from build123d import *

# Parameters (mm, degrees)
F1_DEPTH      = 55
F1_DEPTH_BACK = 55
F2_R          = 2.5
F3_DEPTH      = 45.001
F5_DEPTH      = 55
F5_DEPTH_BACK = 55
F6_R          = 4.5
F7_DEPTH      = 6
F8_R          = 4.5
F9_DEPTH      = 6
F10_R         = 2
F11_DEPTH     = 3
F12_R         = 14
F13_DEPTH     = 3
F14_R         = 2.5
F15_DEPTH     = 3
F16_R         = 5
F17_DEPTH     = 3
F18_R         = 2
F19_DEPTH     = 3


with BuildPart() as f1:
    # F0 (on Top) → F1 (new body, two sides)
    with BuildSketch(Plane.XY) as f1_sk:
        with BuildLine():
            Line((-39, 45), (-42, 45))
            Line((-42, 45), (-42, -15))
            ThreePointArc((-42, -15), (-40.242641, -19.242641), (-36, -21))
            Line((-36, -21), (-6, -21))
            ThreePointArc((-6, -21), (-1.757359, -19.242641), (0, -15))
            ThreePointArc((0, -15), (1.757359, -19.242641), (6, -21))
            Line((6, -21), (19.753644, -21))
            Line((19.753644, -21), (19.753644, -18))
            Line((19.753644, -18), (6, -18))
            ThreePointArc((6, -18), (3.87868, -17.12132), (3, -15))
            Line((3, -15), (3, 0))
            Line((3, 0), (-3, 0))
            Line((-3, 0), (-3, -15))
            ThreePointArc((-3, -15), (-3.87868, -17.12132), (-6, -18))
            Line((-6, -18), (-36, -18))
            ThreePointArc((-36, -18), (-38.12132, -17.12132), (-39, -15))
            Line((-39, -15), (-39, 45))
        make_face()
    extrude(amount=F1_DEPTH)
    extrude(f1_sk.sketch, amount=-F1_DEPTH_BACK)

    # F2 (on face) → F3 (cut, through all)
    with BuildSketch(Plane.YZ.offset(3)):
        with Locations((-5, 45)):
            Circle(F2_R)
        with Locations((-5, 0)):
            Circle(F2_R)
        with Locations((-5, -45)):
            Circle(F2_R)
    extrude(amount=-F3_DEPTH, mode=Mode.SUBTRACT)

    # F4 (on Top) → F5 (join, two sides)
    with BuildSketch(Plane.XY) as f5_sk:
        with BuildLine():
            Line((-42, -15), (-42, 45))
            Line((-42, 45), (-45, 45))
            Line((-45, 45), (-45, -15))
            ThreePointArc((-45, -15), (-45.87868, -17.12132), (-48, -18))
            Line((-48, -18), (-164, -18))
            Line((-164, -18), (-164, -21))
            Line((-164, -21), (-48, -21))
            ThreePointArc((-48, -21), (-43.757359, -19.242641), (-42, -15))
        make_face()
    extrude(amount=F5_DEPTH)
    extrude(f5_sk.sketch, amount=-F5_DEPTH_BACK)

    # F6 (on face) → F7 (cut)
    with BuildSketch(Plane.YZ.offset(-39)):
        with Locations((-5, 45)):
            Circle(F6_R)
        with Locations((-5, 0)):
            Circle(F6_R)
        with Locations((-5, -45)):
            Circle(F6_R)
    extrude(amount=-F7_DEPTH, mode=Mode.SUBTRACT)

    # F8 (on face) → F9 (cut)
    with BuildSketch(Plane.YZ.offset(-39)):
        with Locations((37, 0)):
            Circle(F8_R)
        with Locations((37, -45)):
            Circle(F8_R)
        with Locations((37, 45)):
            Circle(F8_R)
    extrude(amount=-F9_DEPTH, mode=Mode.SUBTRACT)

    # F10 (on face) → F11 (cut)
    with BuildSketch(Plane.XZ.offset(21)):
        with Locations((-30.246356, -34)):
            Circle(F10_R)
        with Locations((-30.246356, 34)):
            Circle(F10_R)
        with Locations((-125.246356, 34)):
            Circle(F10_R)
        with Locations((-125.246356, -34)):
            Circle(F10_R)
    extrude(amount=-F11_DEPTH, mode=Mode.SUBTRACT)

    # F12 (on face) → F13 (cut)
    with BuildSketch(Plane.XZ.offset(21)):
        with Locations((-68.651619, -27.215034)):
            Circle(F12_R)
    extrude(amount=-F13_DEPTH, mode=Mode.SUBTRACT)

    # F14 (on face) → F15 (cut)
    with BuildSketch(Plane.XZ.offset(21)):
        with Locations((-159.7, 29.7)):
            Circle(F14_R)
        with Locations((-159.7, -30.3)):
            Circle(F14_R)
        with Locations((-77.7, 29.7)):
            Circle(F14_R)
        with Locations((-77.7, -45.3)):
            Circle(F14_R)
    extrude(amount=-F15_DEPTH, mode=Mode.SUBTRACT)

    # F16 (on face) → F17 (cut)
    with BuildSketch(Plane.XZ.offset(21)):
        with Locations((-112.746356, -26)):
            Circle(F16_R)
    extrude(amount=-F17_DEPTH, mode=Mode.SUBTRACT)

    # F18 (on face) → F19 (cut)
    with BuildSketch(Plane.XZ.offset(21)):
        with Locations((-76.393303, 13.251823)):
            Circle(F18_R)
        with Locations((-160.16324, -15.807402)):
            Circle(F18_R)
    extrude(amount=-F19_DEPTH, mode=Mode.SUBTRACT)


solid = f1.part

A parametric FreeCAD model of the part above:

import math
import FreeCAD as App
import Part
import Sketcher
from FreeCAD import Vector

doc = App.newDocument("Part")
body = doc.addObject("PartDesign::Body", "Body")

# Sketch on XY plane
sketch1 = body.newObject("Sketcher::SketchObject", "Sketch")
sketch1.AttachmentSupport = (doc.getObject("XY_Plane"), [""])
sketch1.MapMode = "FlatFace"
sketch1.addGeometry([
    Part.LineSegment(Vector(-39, 45, 0), Vector(-42, 45, 0)),  # 0
    Part.LineSegment(Vector(-42, 45, 0), Vector(-42, -15, 0)),  # 1
    Part.ArcOfCircle(Part.Circle(Vector(-36, -15, 0), Vector(0, 0, 1), 6), math.radians(180), math.radians(270)),  # 2
    Part.LineSegment(Vector(-36, -21, 0), Vector(-6, -21, 0)),  # 3
    Part.ArcOfCircle(Part.Circle(Vector(-6, -15, 0), Vector(0, 0, 1), 6), math.radians(-90), math.radians(0)),  # 4
    Part.ArcOfCircle(Part.Circle(Vector(6, -15, 0), Vector(0, 0, 1), 6), math.radians(180), math.radians(270)),  # 5
    Part.LineSegment(Vector(6, -21, 0), Vector(19.8, -21, 0)),  # 6
    Part.LineSegment(Vector(19.8, -21, 0), Vector(19.8, -18, 0)),  # 7
    Part.LineSegment(Vector(19.8, -18, 0), Vector(6, -18, 0)),  # 8
    Part.ArcOfCircle(Part.Circle(Vector(6, -15, 0), Vector(0, 0, 1), 3), math.radians(-180), math.radians(-90)),  # 9
    Part.LineSegment(Vector(3, -15, 0), Vector(3, 0, 0)),  # 10
    Part.LineSegment(Vector(3, 0, 0), Vector(-3, 0, 0)),  # 11
    Part.LineSegment(Vector(-3, 0, 0), Vector(-3, -15, 0)),  # 12
    Part.ArcOfCircle(Part.Circle(Vector(-6, -15, 0), Vector(0, 0, 1), 3), math.radians(-90), math.radians(0)),  # 13
    Part.LineSegment(Vector(-6, -18, 0), Vector(-36, -18, 0)),  # 14
    Part.ArcOfCircle(Part.Circle(Vector(-36, -15, 0), Vector(0, 0, 1), 3), math.radians(-180), math.radians(-90)),  # 15
    Part.LineSegment(Vector(-39, -15, 0), Vector(-39, 45, 0)),  # 16
], False)
sketch1.addConstraint([
    Sketcher.Constraint("Coincident", 0, 2, 1, 1),
    Sketcher.Constraint("Tangent", 1, 2, 2, 1),
    Sketcher.Constraint("Tangent", 2, 2, 3, 1),
    Sketcher.Constraint("Tangent", 3, 2, 4, 1),
    Sketcher.Constraint("Tangent", 4, 2, 5, 1),
    Sketcher.Constraint("Tangent", 5, 2, 6, 1),
    Sketcher.Constraint("Coincident", 6, 2, 7, 1),
    Sketcher.Constraint("Coincident", 7, 2, 8, 1),
    Sketcher.Constraint("Tangent", 8, 2, 9, 2),
    Sketcher.Constraint("Tangent", 9, 1, 10, 1),
    Sketcher.Constraint("Coincident", 10, 2, 11, 1),
    Sketcher.Constraint("Coincident", 11, 2, 12, 1),
    Sketcher.Constraint("Tangent", 12, 2, 13, 2),
    Sketcher.Constraint("Tangent", 13, 1, 14, 1),
    Sketcher.Constraint("Tangent", 14, 2, 15, 2),
    Sketcher.Constraint("Tangent", 15, 1, 16, 1),
    Sketcher.Constraint("Coincident", 16, 2, 0, 1),
    Sketcher.Constraint("Horizontal", 0),
    Sketcher.Constraint("Vertical", 1),
    Sketcher.Constraint("Horizontal", 3),
    Sketcher.Constraint("Horizontal", 6),
    Sketcher.Constraint("Vertical", 7),
    Sketcher.Constraint("Horizontal", 8),
    Sketcher.Constraint("Vertical", 10),
    Sketcher.Constraint("Horizontal", 11),
    Sketcher.Constraint("Vertical", 12),
    Sketcher.Constraint("Horizontal", 14),
    Sketcher.Constraint("Vertical", 16),
    Sketcher.Constraint("Coincident", 9, 3, 5, 3),
    Sketcher.Constraint("Coincident", 13, 3, 4, 3),
    Sketcher.Constraint("Coincident", 15, 3, 2, 3),
    Sketcher.Constraint("Equal", 2, 4),
    Sketcher.Constraint("Equal", 4, 5),
    Sketcher.Constraint("Equal", 9, 13),
    Sketcher.Constraint("Symmetric", 10, 2, 11, 2, -1, 1),
    Sketcher.Constraint("Horizontal", 4, 3, 5, 3),
    Sketcher.Constraint("Radius", 2, 5.999999),
    Sketcher.Constraint("Radius", 9, 3.000001),
    Sketcher.Constraint("DistanceX", 3, 1, 3, 2, 30.0),
    Sketcher.Constraint("DistanceY", 1, 2, 1, 1, 60.0),
    Sketcher.Constraint("DistanceY", 10, 1, 10, 2, 15.0),
    Sketcher.Constraint("DistanceX", 6, 1, 6, 2, 13.753644),
])
pad1 = body.newObject("PartDesign::Pad", "Pad")
pad1.Profile = sketch1
pad1.Type = "TwoLengths"
pad1.Length = 55
pad1.Length2 = 55

# Sketch on YZ plane
sketch2 = body.newObject("Sketcher::SketchObject", "Sketch001")
sketch2.AttachmentSupport = (doc.getObject("YZ_Plane"), [""])
sketch2.MapMode = "FlatFace"
sketch2.AttachmentOffset = App.Placement(Vector(0, 0, 3), App.Rotation())
sketch2.addGeometry([
    Part.Circle(Vector(-5, 45, 0), Vector(0, 0, 1), 2.5),
    Part.Circle(Vector(-5, 0, 0), Vector(0, 0, 1), 2.5),
    Part.Circle(Vector(-5, -45, 0), Vector(0, 0, 1), 2.5),
], False)
sketch2.addConstraint([
    Sketcher.Constraint("Equal", 0, 1),
    Sketcher.Constraint("Equal", 1, 2),
    Sketcher.Constraint("Symmetric", 0, 3, 2, 3, -1),
    Sketcher.Constraint("PointOnObject", 1, 3, -1),
    Sketcher.Constraint("Vertical", 0, 3, 1, 3),
    Sketcher.Constraint("Diameter", 0, 5.0),
    Sketcher.Constraint("DistanceX", 0, 3, -1, 1, 5.0),
    Sketcher.Constraint("DistanceY", -1, 1, 0, 3, 45.0),
])
pocket1 = body.newObject("PartDesign::Pocket", "Pocket")
pocket1.Profile = sketch2
pocket1.Type = "ThroughAll"

# Sketch on XY plane
sketch3 = body.newObject("Sketcher::SketchObject", "Sketch002")
sketch3.AttachmentSupport = (doc.getObject("XY_Plane"), [""])
sketch3.MapMode = "FlatFace"
sketch3.addGeometry([
    Part.LineSegment(Vector(-42, -15, 0), Vector(-42, 45, 0)),  # 0
    Part.LineSegment(Vector(-42, 45, 0), Vector(-45, 45, 0)),  # 1
    Part.LineSegment(Vector(-45, 45, 0), Vector(-45, -15, 0)),  # 2
    Part.ArcOfCircle(Part.Circle(Vector(-48, -15, 0), Vector(0, 0, 1), 3), math.radians(-90), math.radians(0)),  # 3
    Part.LineSegment(Vector(-48, -18, 0), Vector(-164, -18, 0)),  # 4
    Part.LineSegment(Vector(-164, -18, 0), Vector(-164, -21, 0)),  # 5
    Part.LineSegment(Vector(-164, -21, 0), Vector(-48, -21, 0)),  # 6
    Part.ArcOfCircle(Part.Circle(Vector(-48, -15, 0), Vector(0, 0, 1), 6), math.radians(-90), math.radians(0)),  # 7
], False)
sketch3.addConstraint([
    Sketcher.Constraint("Coincident", 0, 2, 1, 1),
    Sketcher.Constraint("Coincident", 1, 2, 2, 1),
    Sketcher.Constraint("Tangent", 2, 2, 3, 2),
    Sketcher.Constraint("Tangent", 3, 1, 4, 1),
    Sketcher.Constraint("Coincident", 4, 2, 5, 1),
    Sketcher.Constraint("Coincident", 5, 2, 6, 1),
    Sketcher.Constraint("Tangent", 6, 2, 7, 1),
    Sketcher.Constraint("Tangent", 7, 2, 0, 1),
    Sketcher.Constraint("Vertical", 0),
    Sketcher.Constraint("Horizontal", 1),
    Sketcher.Constraint("Vertical", 2),
    Sketcher.Constraint("Horizontal", 4),
    Sketcher.Constraint("Vertical", 5),
    Sketcher.Constraint("Horizontal", 6),
    Sketcher.Constraint("Coincident", 7, 3, 3, 3),
    Sketcher.Constraint("Radius", 3, 3.000001),
    Sketcher.Constraint("Radius", 7, 5.999999),
    Sketcher.Constraint("DistanceX", 4, 2, 4, 1, 116.0),
    Sketcher.Constraint("DistanceY", 0, 1, 0, 2, 60.0),
    Sketcher.Constraint("DistanceX", 3, 3, -1, 1, 48.000001),
    Sketcher.Constraint("DistanceY", 3, 3, -1, 1, 14.999999),
])
pad2 = body.newObject("PartDesign::Pad", "Pad001")
pad2.Profile = sketch3
pad2.Type = "TwoLengths"
pad2.Length = 55
pad2.Length2 = 55

# Sketch on YZ plane
sketch4 = body.newObject("Sketcher::SketchObject", "Sketch003")
sketch4.AttachmentSupport = (doc.getObject("YZ_Plane"), [""])
sketch4.MapMode = "FlatFace"
sketch4.AttachmentOffset = App.Placement(Vector(0, 0, -39), App.Rotation())
sketch4.addGeometry([
    Part.Circle(Vector(-5, 45, 0), Vector(0, 0, 1), 4.5),
    Part.Circle(Vector(-5, 0, 0), Vector(0, 0, 1), 4.5),
    Part.Circle(Vector(-5, -45, 0), Vector(0, 0, 1), 4.5),
], False)
sketch4.addConstraint([
    Sketcher.Constraint("Equal", 0, 1),
    Sketcher.Constraint("Equal", 1, 2),
    Sketcher.Constraint("Symmetric", 0, 3, 2, 3, -1),
    Sketcher.Constraint("PointOnObject", 1, 3, -1),
    Sketcher.Constraint("Vertical", 0, 3, 1, 3),
    Sketcher.Constraint("Diameter", 0, 9.0),
    Sketcher.Constraint("DistanceX", 0, 3, -1, 1, 5.0),
    Sketcher.Constraint("DistanceY", -1, 1, 0, 3, 45.0),
])
pocket2 = body.newObject("PartDesign::Pocket", "Pocket001")
pocket2.Profile = sketch4
pocket2.Length = 6

# Sketch on YZ plane
sketch5 = body.newObject("Sketcher::SketchObject", "Sketch004")
sketch5.AttachmentSupport = (doc.getObject("YZ_Plane"), [""])
sketch5.MapMode = "FlatFace"
sketch5.AttachmentOffset = App.Placement(Vector(0, 0, -39), App.Rotation())
sketch5.addGeometry([
    Part.Circle(Vector(37, 0, 0), Vector(0, 0, 1), 4.5),
    Part.Circle(Vector(37, -45, 0), Vector(0, 0, 1), 4.5),
    Part.Circle(Vector(37, 45, 0), Vector(0, 0, 1), 4.5),
], False)
sketch5.addConstraint([
    Sketcher.Constraint("Equal", 0, 1),
    Sketcher.Constraint("Equal", 1, 2),
    Sketcher.Constraint("Symmetric", 1, 3, 2, 3, -1),
    Sketcher.Constraint("PointOnObject", 0, 3, -1),
    Sketcher.Constraint("Vertical", 0, 3, 1, 3),
    Sketcher.Constraint("Diameter", 0, 9.0),
    Sketcher.Constraint("DistanceX", -1, 1, 0, 3, 37.0),
    Sketcher.Constraint("DistanceY", 1, 3, -1, 1, 45.0),
])
pocket3 = body.newObject("PartDesign::Pocket", "Pocket002")
pocket3.Profile = sketch5
pocket3.Length = 6

# Sketch on XZ plane
sketch6 = body.newObject("Sketcher::SketchObject", "Sketch005")
sketch6.AttachmentSupport = (doc.getObject("XZ_Plane"), [""])
sketch6.MapMode = "FlatFace"
sketch6.AttachmentOffset = App.Placement(Vector(0, 0, 21), App.Rotation())
sketch6.addGeometry([
    Part.Circle(Vector(-30.2, -34, 0), Vector(0, 0, 1), 2),
    Part.Circle(Vector(-30.2, 34, 0), Vector(0, 0, 1), 2),
    Part.Circle(Vector(-125.2, 34, 0), Vector(0, 0, 1), 2),
    Part.Circle(Vector(-125.2, -34, 0), Vector(0, 0, 1), 2),
], False)
sketch6.addConstraint([
    Sketcher.Constraint("Equal", 0, 1),
    Sketcher.Constraint("Equal", 1, 2),
    Sketcher.Constraint("Equal", 2, 3),
    Sketcher.Constraint("Symmetric", 0, 3, 1, 3, -1),
    Sketcher.Constraint("Symmetric", 2, 3, 3, 3, -1),
    Sketcher.Constraint("Horizontal", 1, 3, 2, 3),
    Sketcher.Constraint("Diameter", 0, 4.0),
    Sketcher.Constraint("DistanceY", 0, 3, -1, 1, 34.0),
    Sketcher.Constraint("DistanceX", 2, 3, 1, 3, 95.0),
    Sketcher.Constraint("DistanceX", 0, 3, -1, 1, 30.246356),
])
pocket4 = body.newObject("PartDesign::Pocket", "Pocket003")
pocket4.Profile = sketch6
pocket4.Length = 3

# Sketch on XZ plane
sketch7 = body.newObject("Sketcher::SketchObject", "Sketch006")
sketch7.AttachmentSupport = (doc.getObject("XZ_Plane"), [""])
sketch7.MapMode = "FlatFace"
sketch7.AttachmentOffset = App.Placement(Vector(0, 0, 21), App.Rotation())
sketch7.addGeometry(Part.Circle(Vector(-69, -27, 0), Vector(0, 0, 1), 14), False)
sketch7.addConstraint([
    Sketcher.Constraint("Diameter", 0, 28.0),
    Sketcher.Constraint("DistanceX", 0, 3, -1, 1, 68.651619),
    Sketcher.Constraint("DistanceY", 0, 3, -1, 1, 27.215034),
])
pocket5 = body.newObject("PartDesign::Pocket", "Pocket004")
pocket5.Profile = sketch7
pocket5.Length = 3

# Sketch on XZ plane
sketch8 = body.newObject("Sketcher::SketchObject", "Sketch007")
sketch8.AttachmentSupport = (doc.getObject("XZ_Plane"), [""])
sketch8.MapMode = "FlatFace"
sketch8.AttachmentOffset = App.Placement(Vector(0, 0, 21), App.Rotation())
sketch8.addGeometry([
    Part.Circle(Vector(-159.7, 29.7, 0), Vector(0, 0, 1), 2.5),
    Part.Circle(Vector(-159.7, -30.3, 0), Vector(0, 0, 1), 2.5),
    Part.Circle(Vector(-77.7, 29.7, 0), Vector(0, 0, 1), 2.5),
    Part.Circle(Vector(-77.7, -45.3, 0), Vector(0, 0, 1), 2.5),
], False)
sketch8.addConstraint([
    Sketcher.Constraint("Equal", 0, 1),
    Sketcher.Constraint("Equal", 1, 2),
    Sketcher.Constraint("Equal", 2, 3),
    Sketcher.Constraint("Horizontal", 0, 3, 2, 3),
    Sketcher.Constraint("Vertical", 0, 3, 1, 3),
    Sketcher.Constraint("Vertical", 2, 3, 3, 3),
    Sketcher.Constraint("Diameter", 0, 5.0),
    Sketcher.Constraint("DistanceY", 1, 3, 0, 3, 60.0),
    Sketcher.Constraint("DistanceX", 0, 3, 2, 3, 82.0),
    Sketcher.Constraint("DistanceY", 3, 3, 2, 3, 75.0),
    Sketcher.Constraint("DistanceX", 0, 3, -1, 1, 159.7),
    Sketcher.Constraint("DistanceY", -1, 1, 0, 3, 29.7),
])
pocket6 = body.newObject("PartDesign::Pocket", "Pocket005")
pocket6.Profile = sketch8
pocket6.Length = 3

# Sketch on XZ plane
sketch9 = body.newObject("Sketcher::SketchObject", "Sketch008")
sketch9.AttachmentSupport = (doc.getObject("XZ_Plane"), [""])
sketch9.MapMode = "FlatFace"
sketch9.AttachmentOffset = App.Placement(Vector(0, 0, 21), App.Rotation())
sketch9.addGeometry(Part.Circle(Vector(-113, -26, 0), Vector(0, 0, 1), 5), False)
sketch9.addConstraint([
    Sketcher.Constraint("Diameter", 0, 10.0),
    Sketcher.Constraint("DistanceY", 0, 3, -1, 1, 26.0),
    Sketcher.Constraint("DistanceX", 0, 3, -1, 1, 112.746356),
])
pocket7 = body.newObject("PartDesign::Pocket", "Pocket006")
pocket7.Profile = sketch9
pocket7.Length = 3

# Sketch on XZ plane
sketch10 = body.newObject("Sketcher::SketchObject", "Sketch009")
sketch10.AttachmentSupport = (doc.getObject("XZ_Plane"), [""])
sketch10.MapMode = "FlatFace"
sketch10.AttachmentOffset = App.Placement(Vector(0, 0, 21), App.Rotation())
sketch10.addGeometry([
    Part.Circle(Vector(-76.4, 13.3, 0), Vector(0, 0, 1), 2),
    Part.Circle(Vector(-160.2, -15.8, 0), Vector(0, 0, 1), 2),
], False)
sketch10.addConstraint([
    Sketcher.Constraint("Equal", 0, 1),
    Sketcher.Constraint("Diameter", 0, 4.0),
    Sketcher.Constraint("DistanceX", 1, 3, -1, 1, 160.16324),
    Sketcher.Constraint("DistanceX", 0, 3, -1, 1, 76.393303),
    Sketcher.Constraint("DistanceY", -1, 1, 0, 3, 13.251823),
    Sketcher.Constraint("DistanceY", 1, 3, -1, 1, 15.807402),
])
pocket8 = body.newObject("PartDesign::Pocket", "Pocket007")
pocket8.Profile = sketch10
pocket8.Length = 3

doc.recompute()
